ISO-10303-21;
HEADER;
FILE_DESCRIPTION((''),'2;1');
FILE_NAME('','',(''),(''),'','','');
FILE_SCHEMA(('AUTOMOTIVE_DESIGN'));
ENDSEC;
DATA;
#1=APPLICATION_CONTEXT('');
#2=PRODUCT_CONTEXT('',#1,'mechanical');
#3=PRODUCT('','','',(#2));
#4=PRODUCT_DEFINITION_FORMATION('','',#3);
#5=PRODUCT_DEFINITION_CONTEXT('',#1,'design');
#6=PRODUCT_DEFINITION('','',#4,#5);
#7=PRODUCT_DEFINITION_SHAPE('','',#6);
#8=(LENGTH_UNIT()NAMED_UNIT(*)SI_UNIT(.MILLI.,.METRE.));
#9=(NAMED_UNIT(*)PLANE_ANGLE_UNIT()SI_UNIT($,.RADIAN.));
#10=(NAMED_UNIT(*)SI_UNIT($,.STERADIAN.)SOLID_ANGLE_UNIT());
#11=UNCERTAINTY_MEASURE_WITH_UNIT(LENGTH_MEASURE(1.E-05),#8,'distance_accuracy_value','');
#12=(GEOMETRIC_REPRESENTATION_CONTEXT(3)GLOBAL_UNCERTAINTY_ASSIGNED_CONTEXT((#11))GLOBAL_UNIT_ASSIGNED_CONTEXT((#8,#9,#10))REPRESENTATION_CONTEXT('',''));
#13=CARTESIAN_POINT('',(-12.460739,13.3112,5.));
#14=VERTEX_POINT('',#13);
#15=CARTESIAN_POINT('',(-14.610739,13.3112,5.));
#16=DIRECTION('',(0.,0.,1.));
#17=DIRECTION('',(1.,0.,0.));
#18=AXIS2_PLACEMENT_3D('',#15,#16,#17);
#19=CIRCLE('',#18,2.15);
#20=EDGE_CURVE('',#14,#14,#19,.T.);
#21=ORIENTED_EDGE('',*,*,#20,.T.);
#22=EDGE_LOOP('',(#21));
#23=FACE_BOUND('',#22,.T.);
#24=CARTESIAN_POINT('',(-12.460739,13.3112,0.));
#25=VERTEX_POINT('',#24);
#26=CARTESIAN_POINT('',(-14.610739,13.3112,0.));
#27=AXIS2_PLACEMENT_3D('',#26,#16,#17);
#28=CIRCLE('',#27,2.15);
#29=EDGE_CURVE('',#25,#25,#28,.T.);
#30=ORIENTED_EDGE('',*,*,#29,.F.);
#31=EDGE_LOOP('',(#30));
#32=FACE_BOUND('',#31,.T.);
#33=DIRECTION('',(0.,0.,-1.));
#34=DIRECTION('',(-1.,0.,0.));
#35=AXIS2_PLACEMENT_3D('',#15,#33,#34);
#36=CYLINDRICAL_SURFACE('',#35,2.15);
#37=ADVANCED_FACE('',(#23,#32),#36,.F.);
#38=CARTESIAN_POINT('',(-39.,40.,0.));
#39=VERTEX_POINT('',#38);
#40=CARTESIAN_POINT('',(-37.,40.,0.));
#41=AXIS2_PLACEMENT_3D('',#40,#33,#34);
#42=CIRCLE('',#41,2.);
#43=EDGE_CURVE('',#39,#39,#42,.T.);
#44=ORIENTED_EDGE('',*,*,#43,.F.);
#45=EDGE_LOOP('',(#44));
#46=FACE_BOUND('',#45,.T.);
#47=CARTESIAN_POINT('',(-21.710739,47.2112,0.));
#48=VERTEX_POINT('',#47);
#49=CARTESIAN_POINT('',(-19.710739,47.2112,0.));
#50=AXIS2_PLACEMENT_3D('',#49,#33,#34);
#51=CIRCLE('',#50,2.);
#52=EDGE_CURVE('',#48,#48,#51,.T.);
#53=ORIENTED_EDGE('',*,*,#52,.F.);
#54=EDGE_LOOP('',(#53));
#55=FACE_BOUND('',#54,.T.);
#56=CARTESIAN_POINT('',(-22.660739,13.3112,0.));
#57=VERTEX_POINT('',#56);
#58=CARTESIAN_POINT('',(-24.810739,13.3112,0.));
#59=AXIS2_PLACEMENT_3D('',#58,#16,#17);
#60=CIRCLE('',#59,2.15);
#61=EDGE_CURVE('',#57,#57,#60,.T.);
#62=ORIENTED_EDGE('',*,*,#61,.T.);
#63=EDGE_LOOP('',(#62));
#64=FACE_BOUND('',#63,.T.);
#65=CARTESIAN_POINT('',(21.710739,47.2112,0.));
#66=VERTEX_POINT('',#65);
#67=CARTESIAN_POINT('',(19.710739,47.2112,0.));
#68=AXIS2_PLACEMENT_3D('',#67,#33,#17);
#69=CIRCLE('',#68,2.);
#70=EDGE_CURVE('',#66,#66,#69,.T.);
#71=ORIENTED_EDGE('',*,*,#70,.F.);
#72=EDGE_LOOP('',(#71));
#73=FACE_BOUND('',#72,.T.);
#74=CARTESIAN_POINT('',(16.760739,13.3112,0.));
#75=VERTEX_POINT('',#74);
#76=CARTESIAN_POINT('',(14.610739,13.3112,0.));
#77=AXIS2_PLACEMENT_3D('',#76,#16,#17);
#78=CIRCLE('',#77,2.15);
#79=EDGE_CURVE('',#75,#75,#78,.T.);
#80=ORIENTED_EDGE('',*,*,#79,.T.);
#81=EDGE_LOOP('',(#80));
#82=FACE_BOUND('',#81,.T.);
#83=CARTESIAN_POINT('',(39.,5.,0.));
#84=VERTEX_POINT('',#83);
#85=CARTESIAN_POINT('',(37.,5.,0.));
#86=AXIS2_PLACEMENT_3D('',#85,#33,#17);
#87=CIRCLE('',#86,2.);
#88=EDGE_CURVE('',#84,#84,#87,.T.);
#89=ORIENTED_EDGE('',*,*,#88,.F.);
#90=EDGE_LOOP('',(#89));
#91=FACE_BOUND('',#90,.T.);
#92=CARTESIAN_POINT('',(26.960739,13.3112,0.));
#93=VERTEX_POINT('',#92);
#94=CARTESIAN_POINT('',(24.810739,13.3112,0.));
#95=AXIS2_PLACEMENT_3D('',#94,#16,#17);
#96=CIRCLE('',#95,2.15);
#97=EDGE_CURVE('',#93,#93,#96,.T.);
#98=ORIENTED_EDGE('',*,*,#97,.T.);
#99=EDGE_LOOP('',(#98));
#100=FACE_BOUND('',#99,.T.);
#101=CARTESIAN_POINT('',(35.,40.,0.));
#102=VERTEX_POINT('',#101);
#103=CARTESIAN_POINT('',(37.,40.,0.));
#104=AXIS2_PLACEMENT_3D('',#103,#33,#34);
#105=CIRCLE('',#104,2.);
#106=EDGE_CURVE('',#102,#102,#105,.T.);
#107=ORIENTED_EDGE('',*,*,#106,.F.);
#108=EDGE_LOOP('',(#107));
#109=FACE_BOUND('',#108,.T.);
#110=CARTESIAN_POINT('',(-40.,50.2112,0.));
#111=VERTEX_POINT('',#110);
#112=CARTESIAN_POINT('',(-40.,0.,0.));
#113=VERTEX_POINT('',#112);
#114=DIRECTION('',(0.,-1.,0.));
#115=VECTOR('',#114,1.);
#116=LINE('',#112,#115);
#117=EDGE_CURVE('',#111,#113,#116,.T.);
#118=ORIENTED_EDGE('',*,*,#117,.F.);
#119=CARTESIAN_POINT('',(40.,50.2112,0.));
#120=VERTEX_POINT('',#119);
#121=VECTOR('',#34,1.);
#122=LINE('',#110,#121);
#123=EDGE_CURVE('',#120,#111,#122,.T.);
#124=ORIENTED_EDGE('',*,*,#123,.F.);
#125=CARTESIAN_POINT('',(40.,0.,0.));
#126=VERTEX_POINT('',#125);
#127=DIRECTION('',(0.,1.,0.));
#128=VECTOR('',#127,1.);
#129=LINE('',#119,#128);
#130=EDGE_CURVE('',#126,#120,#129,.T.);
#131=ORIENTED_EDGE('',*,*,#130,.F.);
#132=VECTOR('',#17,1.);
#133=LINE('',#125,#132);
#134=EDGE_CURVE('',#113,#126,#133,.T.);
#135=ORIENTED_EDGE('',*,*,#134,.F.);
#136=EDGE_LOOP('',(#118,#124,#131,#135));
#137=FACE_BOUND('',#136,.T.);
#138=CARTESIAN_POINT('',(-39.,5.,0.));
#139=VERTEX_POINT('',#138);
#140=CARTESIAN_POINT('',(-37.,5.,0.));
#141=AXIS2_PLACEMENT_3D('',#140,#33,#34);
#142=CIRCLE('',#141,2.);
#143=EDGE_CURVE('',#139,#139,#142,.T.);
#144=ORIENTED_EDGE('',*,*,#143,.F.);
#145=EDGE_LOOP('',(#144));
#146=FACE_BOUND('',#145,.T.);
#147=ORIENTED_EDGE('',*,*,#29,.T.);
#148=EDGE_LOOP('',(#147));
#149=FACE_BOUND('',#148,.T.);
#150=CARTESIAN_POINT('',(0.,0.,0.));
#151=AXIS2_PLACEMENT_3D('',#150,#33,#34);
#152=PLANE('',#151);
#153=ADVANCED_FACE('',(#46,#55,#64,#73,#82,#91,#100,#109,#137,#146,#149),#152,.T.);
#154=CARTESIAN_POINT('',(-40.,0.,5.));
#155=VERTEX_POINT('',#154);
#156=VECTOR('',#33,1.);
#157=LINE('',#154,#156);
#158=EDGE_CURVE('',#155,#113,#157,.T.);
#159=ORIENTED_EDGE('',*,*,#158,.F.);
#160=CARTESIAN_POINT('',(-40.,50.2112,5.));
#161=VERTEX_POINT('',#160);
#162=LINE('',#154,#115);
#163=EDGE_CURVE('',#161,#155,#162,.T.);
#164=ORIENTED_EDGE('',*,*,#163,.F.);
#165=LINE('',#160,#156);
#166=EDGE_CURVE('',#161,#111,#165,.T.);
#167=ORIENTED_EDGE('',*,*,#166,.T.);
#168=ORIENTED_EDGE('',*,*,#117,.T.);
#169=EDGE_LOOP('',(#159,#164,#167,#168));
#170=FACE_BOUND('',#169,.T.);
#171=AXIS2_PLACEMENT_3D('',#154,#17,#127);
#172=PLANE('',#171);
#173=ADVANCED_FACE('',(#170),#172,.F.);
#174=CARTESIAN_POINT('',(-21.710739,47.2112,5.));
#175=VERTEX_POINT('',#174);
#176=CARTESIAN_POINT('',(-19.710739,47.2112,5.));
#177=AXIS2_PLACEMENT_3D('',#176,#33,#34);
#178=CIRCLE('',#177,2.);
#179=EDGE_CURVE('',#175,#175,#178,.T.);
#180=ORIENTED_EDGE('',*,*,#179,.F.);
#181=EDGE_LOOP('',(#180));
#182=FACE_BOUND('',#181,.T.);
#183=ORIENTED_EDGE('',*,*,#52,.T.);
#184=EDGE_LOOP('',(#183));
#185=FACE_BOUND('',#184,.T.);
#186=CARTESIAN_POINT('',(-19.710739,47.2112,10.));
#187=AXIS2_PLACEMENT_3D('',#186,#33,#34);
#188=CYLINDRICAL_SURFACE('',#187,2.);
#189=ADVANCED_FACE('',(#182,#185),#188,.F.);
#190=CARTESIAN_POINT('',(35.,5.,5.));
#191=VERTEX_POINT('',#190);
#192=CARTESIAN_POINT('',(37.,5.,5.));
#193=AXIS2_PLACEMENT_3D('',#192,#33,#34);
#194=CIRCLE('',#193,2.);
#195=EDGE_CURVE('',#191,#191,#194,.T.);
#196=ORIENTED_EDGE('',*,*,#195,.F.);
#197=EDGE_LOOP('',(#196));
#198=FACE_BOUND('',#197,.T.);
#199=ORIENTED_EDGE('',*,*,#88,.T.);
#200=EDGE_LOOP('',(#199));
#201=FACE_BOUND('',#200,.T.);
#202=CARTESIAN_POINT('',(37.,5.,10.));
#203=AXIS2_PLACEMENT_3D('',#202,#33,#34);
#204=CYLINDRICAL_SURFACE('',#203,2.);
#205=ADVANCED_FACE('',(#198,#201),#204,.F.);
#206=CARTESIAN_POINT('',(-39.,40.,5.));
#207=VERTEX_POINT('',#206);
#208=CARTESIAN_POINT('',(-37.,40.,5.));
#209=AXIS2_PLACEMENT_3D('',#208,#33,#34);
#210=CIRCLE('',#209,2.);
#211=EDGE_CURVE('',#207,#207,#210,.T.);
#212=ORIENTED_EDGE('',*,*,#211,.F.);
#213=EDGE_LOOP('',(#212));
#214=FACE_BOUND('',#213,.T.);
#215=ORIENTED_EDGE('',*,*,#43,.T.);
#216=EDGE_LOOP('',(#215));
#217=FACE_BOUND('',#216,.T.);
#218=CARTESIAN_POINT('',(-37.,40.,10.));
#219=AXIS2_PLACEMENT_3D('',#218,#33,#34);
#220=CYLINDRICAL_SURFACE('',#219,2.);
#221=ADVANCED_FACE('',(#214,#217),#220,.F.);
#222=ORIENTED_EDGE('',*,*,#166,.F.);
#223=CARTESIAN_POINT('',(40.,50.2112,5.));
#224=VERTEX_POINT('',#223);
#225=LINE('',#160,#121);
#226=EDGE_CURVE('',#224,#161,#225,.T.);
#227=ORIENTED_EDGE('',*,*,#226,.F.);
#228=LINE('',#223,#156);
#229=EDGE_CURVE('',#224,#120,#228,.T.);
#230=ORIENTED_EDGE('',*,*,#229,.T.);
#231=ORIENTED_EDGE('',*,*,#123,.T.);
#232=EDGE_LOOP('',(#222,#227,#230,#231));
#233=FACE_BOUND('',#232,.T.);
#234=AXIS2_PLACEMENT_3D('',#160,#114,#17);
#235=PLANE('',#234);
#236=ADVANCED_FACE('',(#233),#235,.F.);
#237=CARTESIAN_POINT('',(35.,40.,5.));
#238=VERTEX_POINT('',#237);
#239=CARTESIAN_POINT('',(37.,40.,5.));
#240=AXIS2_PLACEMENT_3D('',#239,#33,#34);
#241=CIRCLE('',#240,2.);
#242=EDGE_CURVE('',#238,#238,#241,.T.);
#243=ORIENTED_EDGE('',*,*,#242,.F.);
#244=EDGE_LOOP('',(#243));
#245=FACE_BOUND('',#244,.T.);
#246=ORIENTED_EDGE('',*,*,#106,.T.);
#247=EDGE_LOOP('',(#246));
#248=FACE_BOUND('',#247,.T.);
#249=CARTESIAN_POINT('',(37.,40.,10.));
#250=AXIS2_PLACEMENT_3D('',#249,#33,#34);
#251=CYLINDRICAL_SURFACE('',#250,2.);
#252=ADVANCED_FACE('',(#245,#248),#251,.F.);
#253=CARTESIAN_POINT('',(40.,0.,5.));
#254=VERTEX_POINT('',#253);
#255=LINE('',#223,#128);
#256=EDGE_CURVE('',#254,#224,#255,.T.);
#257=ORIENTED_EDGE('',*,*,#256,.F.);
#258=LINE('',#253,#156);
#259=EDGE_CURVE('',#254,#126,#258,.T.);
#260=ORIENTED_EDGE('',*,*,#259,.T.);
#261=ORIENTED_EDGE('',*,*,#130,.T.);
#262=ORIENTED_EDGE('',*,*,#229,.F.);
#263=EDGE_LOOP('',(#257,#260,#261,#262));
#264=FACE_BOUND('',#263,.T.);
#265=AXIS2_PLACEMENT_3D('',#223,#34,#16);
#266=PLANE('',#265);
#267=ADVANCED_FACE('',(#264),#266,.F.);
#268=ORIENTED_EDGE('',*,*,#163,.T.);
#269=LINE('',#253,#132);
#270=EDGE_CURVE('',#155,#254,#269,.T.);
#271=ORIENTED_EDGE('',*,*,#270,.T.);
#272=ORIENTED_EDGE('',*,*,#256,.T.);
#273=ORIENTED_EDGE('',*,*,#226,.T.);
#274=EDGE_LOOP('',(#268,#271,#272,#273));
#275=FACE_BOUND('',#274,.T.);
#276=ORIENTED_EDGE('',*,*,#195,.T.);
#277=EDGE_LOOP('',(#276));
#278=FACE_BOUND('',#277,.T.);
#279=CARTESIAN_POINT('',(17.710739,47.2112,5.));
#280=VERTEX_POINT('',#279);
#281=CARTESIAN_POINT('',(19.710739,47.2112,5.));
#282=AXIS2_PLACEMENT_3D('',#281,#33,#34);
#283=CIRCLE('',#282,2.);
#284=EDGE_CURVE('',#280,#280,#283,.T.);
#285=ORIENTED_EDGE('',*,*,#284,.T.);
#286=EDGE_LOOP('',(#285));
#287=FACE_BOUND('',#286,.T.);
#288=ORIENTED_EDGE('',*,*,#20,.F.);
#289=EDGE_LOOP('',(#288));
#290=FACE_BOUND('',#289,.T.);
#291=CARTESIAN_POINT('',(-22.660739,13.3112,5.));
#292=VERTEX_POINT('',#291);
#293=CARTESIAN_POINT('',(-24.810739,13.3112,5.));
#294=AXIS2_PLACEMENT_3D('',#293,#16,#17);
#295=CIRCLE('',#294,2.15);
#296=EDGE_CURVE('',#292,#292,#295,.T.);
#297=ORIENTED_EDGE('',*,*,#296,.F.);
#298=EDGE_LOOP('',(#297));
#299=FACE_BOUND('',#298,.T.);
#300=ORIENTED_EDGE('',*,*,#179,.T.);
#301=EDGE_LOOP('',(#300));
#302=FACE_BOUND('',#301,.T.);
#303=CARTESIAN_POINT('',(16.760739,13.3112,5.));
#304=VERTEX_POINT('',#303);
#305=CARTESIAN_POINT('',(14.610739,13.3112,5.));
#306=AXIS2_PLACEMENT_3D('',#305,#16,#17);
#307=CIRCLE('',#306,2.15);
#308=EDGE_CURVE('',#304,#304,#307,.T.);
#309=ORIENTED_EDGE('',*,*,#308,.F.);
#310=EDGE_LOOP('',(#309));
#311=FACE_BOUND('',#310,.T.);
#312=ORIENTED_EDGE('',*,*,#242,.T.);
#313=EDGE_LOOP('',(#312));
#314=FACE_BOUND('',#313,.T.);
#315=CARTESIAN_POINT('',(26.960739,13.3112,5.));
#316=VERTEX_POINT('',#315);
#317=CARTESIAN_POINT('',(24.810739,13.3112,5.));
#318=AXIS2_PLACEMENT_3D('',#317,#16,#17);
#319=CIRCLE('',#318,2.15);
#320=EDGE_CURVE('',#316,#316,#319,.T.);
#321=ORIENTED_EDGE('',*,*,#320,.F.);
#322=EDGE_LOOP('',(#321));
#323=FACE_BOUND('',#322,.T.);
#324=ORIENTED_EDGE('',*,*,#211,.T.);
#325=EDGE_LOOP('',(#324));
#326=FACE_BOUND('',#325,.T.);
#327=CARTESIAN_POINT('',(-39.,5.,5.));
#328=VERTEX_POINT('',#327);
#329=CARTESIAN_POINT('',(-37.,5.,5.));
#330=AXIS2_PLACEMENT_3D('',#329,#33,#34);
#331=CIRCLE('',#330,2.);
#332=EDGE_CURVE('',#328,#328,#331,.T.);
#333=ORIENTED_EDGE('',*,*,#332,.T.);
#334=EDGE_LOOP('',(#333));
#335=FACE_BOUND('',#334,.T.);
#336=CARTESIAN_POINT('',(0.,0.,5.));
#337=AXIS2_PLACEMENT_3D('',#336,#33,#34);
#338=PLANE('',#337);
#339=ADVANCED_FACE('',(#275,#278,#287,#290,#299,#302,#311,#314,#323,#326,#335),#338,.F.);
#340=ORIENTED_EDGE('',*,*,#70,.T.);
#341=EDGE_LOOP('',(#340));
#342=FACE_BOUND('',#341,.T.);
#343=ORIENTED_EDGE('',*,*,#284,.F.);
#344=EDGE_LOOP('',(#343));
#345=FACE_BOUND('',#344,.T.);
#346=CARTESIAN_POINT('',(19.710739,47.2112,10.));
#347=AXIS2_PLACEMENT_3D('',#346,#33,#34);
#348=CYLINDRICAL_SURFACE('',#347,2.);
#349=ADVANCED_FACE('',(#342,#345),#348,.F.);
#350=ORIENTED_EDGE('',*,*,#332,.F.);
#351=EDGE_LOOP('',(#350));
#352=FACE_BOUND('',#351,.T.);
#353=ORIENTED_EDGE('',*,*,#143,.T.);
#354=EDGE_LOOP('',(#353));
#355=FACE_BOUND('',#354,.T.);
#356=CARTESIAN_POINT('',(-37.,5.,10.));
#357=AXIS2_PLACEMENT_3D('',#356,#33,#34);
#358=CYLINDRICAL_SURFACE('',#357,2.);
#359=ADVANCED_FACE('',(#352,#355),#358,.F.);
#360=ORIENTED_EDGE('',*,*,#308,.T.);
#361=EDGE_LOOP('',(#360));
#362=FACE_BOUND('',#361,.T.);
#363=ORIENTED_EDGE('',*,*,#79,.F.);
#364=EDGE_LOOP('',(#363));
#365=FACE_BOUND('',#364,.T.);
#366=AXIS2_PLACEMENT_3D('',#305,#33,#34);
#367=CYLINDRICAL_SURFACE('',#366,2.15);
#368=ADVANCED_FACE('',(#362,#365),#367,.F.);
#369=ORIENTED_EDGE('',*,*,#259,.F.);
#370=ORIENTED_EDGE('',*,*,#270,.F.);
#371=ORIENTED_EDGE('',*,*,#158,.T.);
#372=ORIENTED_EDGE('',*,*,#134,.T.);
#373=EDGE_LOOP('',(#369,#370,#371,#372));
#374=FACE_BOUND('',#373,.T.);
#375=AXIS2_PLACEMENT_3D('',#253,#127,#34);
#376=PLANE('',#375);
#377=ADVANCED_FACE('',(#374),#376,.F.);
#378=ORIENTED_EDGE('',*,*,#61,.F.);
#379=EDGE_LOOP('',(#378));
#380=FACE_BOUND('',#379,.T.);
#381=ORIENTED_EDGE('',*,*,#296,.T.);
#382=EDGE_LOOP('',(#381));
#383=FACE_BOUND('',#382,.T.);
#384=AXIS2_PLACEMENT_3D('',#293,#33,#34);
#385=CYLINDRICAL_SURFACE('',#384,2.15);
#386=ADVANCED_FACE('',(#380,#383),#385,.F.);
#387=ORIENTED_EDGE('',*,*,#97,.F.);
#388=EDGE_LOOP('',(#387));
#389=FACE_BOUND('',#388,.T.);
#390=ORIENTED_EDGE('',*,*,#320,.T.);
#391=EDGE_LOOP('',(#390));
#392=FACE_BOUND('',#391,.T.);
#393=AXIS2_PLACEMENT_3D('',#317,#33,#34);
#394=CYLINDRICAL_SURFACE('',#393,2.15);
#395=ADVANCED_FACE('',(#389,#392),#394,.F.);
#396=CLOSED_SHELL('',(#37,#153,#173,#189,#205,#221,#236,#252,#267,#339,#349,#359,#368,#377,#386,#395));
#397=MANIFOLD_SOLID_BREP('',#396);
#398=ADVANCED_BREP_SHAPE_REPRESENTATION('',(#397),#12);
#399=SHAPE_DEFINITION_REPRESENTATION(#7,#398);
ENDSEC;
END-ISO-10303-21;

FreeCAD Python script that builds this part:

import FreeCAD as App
import Part
import Sketcher
Q = App.Units.Quantity

doc = App.newDocument("Part")
body = doc.addObject("PartDesign::Body", "Body")

# Sketch on XY plane
sketch1 = body.newObject("Sketcher::SketchObject", "Sketch")
sketch1.AttachmentSupport = (doc.getObject("XY_Plane"), [""])
sketch1.MapMode = "FlatFace"
sketch1.addGeometry([
    Part.LineSegment(App.Vector(-40, 50.2, 0), App.Vector(-40, 0, 0)),  # 0
    Part.LineSegment(App.Vector(-40, 0, 0), App.Vector(40, 0, 0)),  # 1
    Part.LineSegment(App.Vector(40, 0, 0), App.Vector(40, 50.2, 0)),  # 2
    Part.LineSegment(App.Vector(40, 50.2, 0), App.Vector(-40, 50.2, 0)),  # 3
    Part.Circle(App.Vector(-24.8, 13.3, 0), App.Vector(0, 0, 1), 2.1),  # 4
    Part.Circle(App.Vector(-14.6, 13.3, 0), App.Vector(0, 0, 1), 2.1),  # 5
    Part.Circle(App.Vector(14.6, 13.3, 0), App.Vector(0, 0, 1), 2.1),  # 6
    Part.Circle(App.Vector(24.8, 13.3, 0), App.Vector(0, 0, 1), 2.1),  # 7
], False)
sketch1.addConstraint([
    Sketcher.Constraint("Coincident", 0, 2, 1, 1),
    Sketcher.Constraint("Coincident", 1, 2, 2, 1),
    Sketcher.Constraint("Coincident", 2, 2, 3, 1),
    Sketcher.Constraint("Coincident", 3, 2, 0, 1),
    Sketcher.Constraint("Vertical", 0),
    Sketcher.Constraint("Horizontal", 1),
    Sketcher.Constraint("Vertical", 2),
    Sketcher.Constraint("Horizontal", 3),
    Sketcher.Constraint("Equal", 4, 5),
    Sketcher.Constraint("Equal", 5, 6),
    Sketcher.Constraint("Equal", 6, 7),
    Sketcher.Constraint("Symmetric", 0, 2, 1, 2, -1, 1),
    Sketcher.Constraint("Symmetric", 5, 3, 6, 3, -2),
    Sketcher.Constraint("Symmetric", 4, 3, 7, 3, -2),
    Sketcher.Constraint("Horizontal", 4, 3, 5, 3),
    Sketcher.Constraint("Diameter", 4, Q("4.3 mm")),
    Sketcher.Constraint("DistanceX", 1, 1, 1, 2, Q("80 mm")),
    Sketcher.Constraint("DistanceX", 4, 3, 5, 3, Q("10.2 mm")),
    Sketcher.Constraint("DistanceY", 7, 3, 2, 2, Q("36.9 mm")),
    Sketcher.Constraint("DistanceY", 0, 2, 0, 1, Q("50.2112 mm")),
    Sketcher.Constraint("DistanceX", 4, 3, -1, 1, Q("24.810739 mm")),
])
pad1 = body.newObject("PartDesign::Pad", "Pad")
pad1.Profile = sketch1
pad1.Length = 5

# Sketch on XY plane
sketch2 = body.newObject("Sketcher::SketchObject", "Sketch001")
sketch2.AttachmentSupport = (doc.getObject("XY_Plane"), [""])
sketch2.MapMode = "FlatFace"
sketch2.addGeometry([
    Part.Circle(App.Vector(-19.7, 47.2, 0), App.Vector(0, 0, 1), 2),  # 0
    Part.Circle(App.Vector(19.7, 47.2, 0), App.Vector(0, 0, 1), 2),  # 1
    Part.Circle(App.Vector(-37, 40, 0), App.Vector(0, 0, 1), 2),  # 2
    Part.Circle(App.Vector(37, 40, 0), App.Vector(0, 0, 1), 2),  # 3
    Part.Circle(App.Vector(-37, 5, 0), App.Vector(0, 0, 1), 2),  # 4
    Part.Circle(App.Vector(37, 5, 0), App.Vector(0, 0, 1), 2),  # 5
], False)
sketch2.addConstraint([
    Sketcher.Constraint("Equal", 0, 1),
    Sketcher.Constraint("Equal", 1, 2),
    Sketcher.Constraint("Equal", 2, 3),
    Sketcher.Constraint("Equal", 3, 4),
    Sketcher.Constraint("Equal", 4, 5),
    Sketcher.Constraint("Symmetric", 0, 3, 1, 3, -2),
    Sketcher.Constraint("Symmetric", 2, 3, 3, 3, -2),
    Sketcher.Constraint("Symmetric", 4, 3, 5, 3, -2),
    Sketcher.Constraint("Vertical", 2, 3, 4, 3),
    Sketcher.Constraint("Diameter", 0, Q("4 mm")),
    Sketcher.Constraint("DistanceX", 2, 3, -1, 1, Q("37 mm")),
    Sketcher.Constraint("DistanceY", -1, 1, 2, 3, Q("40 mm")),
    Sketcher.Constraint("DistanceY", -1, 1, 4, 3, Q("5 mm")),
    Sketcher.Constraint("DistanceY", -1, 1, 0, 3, Q("47.2112 mm")),
    Sketcher.Constraint("DistanceX", 0, 3, -1, 1, Q("19.710739 mm")),
])
pocket1 = body.newObject("PartDesign::Pocket", "Pocket")
pocket1.Profile = sketch2
pocket1.Length = 10
pocket1.Reversed = True

doc.recompute()
